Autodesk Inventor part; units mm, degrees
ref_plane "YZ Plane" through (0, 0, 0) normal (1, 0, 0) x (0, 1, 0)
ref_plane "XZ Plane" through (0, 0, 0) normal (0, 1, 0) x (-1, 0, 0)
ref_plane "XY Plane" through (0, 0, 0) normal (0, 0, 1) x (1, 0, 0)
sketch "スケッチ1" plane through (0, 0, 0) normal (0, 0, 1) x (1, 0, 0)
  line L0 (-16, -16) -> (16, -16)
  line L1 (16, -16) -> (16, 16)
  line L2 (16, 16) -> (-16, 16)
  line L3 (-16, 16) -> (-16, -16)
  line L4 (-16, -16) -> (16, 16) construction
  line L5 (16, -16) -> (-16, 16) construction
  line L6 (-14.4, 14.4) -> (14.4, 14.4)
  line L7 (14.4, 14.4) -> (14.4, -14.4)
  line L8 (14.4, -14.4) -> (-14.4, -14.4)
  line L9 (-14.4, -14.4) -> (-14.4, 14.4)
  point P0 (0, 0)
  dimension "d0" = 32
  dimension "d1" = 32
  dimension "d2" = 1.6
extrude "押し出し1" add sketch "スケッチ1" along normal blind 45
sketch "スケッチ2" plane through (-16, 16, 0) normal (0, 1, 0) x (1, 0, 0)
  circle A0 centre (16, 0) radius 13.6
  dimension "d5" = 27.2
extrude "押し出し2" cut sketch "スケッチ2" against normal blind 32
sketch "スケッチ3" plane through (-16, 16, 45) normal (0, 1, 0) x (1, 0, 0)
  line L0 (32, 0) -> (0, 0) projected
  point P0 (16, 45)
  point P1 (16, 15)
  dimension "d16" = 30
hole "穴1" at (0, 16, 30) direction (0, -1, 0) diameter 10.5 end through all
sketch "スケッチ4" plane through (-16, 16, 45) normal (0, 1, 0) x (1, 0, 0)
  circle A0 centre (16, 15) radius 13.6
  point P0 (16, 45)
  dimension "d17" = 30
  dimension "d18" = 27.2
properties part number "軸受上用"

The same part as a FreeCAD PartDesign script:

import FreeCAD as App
import Part
import Sketcher
Q = App.Units.Quantity


def add_polygon(sketch, points):
    """Adds a closed chain of lines whose ends are joined by coincident constraints."""
    first, n = sketch.GeometryCount, len(points)
    for a, b in zip(points, points[1:] + points[:1]):
        sketch.addGeometry(Part.LineSegment(App.Vector(*a, 0), App.Vector(*b, 0)), False)
    for i in range(n):
        sketch.addConstraint(Sketcher.Constraint("Coincident", first + i, 2, first + (i + 1) % n, 1))

doc = App.newDocument("Part")
body = doc.addObject("PartDesign::Body", "Body")

sketch1 = body.newObject("Sketcher::SketchObject", "Sketch")
sketch1.AttachmentSupport = (doc.getObject("XY_Plane"), [""])
sketch1.MapMode = "FlatFace"
add_polygon(sketch1, [(-16, 16), (-16, -16), (16, -16), (16, 16)])
add_polygon(sketch1, [(-14, -14), (-14, 14), (14, 14), (14, -14)])
sketch1.addConstraint(Sketcher.Constraint("Vertical", 0))
sketch1.addConstraint(Sketcher.Constraint("Horizontal", 1))
sketch1.addConstraint(Sketcher.Constraint("Vertical", 2))
sketch1.addConstraint(Sketcher.Constraint("Horizontal", 3))
sketch1.addConstraint(Sketcher.Constraint("Vertical", 4))
sketch1.addConstraint(Sketcher.Constraint("Horizontal", 5))
sketch1.addConstraint(Sketcher.Constraint("Vertical", 6))
sketch1.addConstraint(Sketcher.Constraint("Horizontal", 7))
sketch1.addConstraint(Sketcher.Constraint("Symmetric", 0, 2, 2, 2, -1, 1))
sketch1.addConstraint(Sketcher.Constraint("Symmetric", 4, 2, 6, 2, -1, 1))
sketch1.addConstraint(Sketcher.Constraint("Equal", 3, 0))
sketch1.addConstraint(Sketcher.Constraint("Equal", 7, 4))
sketch1.addConstraint(Sketcher.Constraint("DistanceX", 1, 1, 1, 2, Q("32 mm")))
sketch1.addConstraint(Sketcher.Constraint("DistanceX", 3, 2, 4, 2, Q("1.6 mm")))
pad1 = body.newObject("PartDesign::Pad", "Pad")
pad1.Profile = sketch1
pad1.Length = 45

sketch2 = body.newObject("Sketcher::SketchObject", "Sketch001")
sketch2.AttachmentSupport = (doc.getObject("XZ_Plane"), [""])
sketch2.MapMode = "FlatFace"
sketch2.AttachmentOffset = App.Placement(App.Vector(0, 0, -16), App.Rotation())
sketch2.addGeometry(Part.Circle(App.Vector(0, 0, 0), App.Vector(0, 0, 1), 14), False)
sketch2.addConstraint(Sketcher.Constraint("Coincident", 0, 3, -1, 1))
sketch2.addConstraint(Sketcher.Constraint("Diameter", 0, Q("27.2 mm")))
pocket1 = body.newObject("PartDesign::Pocket", "Pocket")
pocket1.Profile = sketch2
pocket1.Length = 32
pocket1.Reversed = True

sketch3 = body.newObject("Sketcher::SketchObject", "Sketch002")
sketch3.AttachmentSupport = (doc.getObject("XZ_Plane"), [""])
sketch3.MapMode = "FlatFace"
sketch3.AttachmentOffset = App.Placement(App.Vector(0, 0, -16), App.Rotation())
sketch3.addGeometry(Part.Circle(App.Vector(0, 30, 0), App.Vector(0, 0, 1), 5), False)
sketch3.addConstraint(Sketcher.Constraint("PointOnObject", 0, 3, -2))
sketch3.addConstraint(Sketcher.Constraint("Diameter", 0, Q("10.5 mm")))
sketch3.addConstraint(Sketcher.Constraint("DistanceY", -1, 1, 0, 3, Q("30 mm")))
doc.recompute()
hole = body.newObject("PartDesign::Hole", "Hole")
hole.Profile = sketch3
hole.ThreadType = "None"
hole.Diameter = 10.5
hole.DepthType = "ThroughAll"
hole.Reversed = True

doc.recompute()
